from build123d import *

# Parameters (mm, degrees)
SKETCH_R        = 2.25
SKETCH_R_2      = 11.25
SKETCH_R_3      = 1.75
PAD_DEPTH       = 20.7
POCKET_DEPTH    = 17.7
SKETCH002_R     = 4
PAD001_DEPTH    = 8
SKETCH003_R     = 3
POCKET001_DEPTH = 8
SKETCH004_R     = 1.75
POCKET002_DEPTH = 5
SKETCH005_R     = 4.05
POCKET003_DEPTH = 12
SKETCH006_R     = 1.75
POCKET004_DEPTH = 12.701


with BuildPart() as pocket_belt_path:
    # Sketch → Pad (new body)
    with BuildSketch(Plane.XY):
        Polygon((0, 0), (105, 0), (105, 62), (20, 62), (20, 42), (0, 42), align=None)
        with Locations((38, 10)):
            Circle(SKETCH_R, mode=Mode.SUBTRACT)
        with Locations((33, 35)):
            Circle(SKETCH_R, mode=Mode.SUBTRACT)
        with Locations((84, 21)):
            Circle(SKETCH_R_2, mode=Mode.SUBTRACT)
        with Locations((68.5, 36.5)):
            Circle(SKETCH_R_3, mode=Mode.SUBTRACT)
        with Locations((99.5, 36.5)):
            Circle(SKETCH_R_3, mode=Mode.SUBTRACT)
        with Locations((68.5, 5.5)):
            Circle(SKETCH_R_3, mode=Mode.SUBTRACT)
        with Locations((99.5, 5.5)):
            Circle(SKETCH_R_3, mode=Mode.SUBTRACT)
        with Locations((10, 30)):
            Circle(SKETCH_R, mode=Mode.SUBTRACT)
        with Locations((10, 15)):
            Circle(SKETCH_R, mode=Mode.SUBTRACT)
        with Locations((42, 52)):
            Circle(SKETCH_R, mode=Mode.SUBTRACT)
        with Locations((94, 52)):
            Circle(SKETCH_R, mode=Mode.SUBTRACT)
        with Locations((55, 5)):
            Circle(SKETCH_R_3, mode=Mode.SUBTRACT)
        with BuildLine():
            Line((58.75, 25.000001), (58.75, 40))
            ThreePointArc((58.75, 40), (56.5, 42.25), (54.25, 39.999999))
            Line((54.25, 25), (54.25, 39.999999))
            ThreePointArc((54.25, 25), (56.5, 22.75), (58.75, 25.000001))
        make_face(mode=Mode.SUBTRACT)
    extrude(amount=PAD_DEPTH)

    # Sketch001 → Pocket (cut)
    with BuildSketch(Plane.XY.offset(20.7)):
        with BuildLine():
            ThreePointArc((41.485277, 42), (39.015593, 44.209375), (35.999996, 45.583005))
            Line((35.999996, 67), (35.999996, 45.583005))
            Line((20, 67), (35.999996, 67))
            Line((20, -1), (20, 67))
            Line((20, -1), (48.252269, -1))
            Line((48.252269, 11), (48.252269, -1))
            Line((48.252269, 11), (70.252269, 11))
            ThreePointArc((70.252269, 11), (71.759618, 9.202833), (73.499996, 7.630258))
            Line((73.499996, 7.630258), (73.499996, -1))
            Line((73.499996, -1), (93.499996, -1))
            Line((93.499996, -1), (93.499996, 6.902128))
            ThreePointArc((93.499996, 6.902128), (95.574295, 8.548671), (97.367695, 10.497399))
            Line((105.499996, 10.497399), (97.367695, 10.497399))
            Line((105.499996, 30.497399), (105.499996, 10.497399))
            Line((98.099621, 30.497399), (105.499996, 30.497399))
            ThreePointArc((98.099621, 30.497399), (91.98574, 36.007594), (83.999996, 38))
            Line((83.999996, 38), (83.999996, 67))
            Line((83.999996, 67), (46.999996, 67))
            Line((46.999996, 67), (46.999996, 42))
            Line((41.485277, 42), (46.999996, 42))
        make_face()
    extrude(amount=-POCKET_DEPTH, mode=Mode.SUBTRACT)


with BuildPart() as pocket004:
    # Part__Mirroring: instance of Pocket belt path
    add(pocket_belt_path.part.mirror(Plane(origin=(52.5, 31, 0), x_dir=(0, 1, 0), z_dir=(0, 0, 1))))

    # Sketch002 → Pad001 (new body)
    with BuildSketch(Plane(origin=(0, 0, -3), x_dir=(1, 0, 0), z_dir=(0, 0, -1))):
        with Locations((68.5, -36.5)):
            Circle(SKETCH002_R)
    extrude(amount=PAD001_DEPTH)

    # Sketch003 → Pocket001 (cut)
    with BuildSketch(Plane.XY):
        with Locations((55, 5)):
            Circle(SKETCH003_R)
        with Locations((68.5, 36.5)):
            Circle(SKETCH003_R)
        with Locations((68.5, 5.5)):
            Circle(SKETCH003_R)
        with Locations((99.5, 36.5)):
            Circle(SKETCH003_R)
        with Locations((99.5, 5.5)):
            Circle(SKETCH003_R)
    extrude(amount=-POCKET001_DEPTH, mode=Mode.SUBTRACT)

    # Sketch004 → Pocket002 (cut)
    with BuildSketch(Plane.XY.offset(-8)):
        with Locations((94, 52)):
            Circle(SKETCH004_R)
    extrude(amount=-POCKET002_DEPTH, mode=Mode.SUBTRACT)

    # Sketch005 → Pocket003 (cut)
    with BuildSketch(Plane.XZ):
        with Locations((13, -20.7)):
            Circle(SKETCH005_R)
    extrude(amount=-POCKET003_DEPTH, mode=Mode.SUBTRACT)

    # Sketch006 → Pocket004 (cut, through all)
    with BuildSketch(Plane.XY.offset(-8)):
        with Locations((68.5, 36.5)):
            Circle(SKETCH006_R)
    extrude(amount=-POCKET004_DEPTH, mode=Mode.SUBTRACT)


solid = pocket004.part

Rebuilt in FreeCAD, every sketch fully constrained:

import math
import FreeCAD as App
import Part
import Sketcher
Q = App.Units.Quantity

doc = App.newDocument("Part")
body = doc.addObject("PartDesign::Body", "Body")

# Sketch on XY plane
sketch1 = body.newObject("Sketcher::SketchObject", "Sketch")
sketch1.AttachmentSupport = (doc.getObject("XY_Plane"), [""])
sketch1.MapMode = "FlatFace"
sketch1.addGeometry([
    Part.LineSegment(App.Vector(0, 0, 0), App.Vector(105, 0, 0)),  # 0
    Part.LineSegment(App.Vector(105, 0, 0), App.Vector(105, 62, 0)),  # 1
    Part.LineSegment(App.Vector(105, 62, 0), App.Vector(20, 62, 0)),  # 2
    Part.LineSegment(App.Vector(20, 62, 0), App.Vector(20, 42, 0)),  # 3
    Part.LineSegment(App.Vector(20, 42, 0), App.Vector(0, 42, 0)),  # 4
    Part.LineSegment(App.Vector(0, 42, 0), App.Vector(0, 0, 0)),  # 5
    Part.Circle(App.Vector(10, 15, 0), App.Vector(0, 0, 1), 2.2),  # 6
    Part.Circle(App.Vector(38, 10, 0), App.Vector(0, 0, 1), 2.2),  # 7
    Part.Circle(App.Vector(55, 5, 0), App.Vector(0, 0, 1), 1.8),  # 8
    Part.Circle(App.Vector(68.5, 5.5, 0), App.Vector(0, 0, 1), 1.8),  # 9
    Part.Circle(App.Vector(99.5, 5.5, 0), App.Vector(0, 0, 1), 1.8),  # 10
    Part.Circle(App.Vector(84, 21, 0), App.Vector(0, 0, 1), 11.2),  # 11
    Part.Circle(App.Vector(10, 30, 0), App.Vector(0, 0, 1), 2.2),  # 12
    Part.Circle(App.Vector(33, 35, 0), App.Vector(0, 0, 1), 2.2),  # 13
    Part.Circle(App.Vector(42, 52, 0), App.Vector(0, 0, 1), 2.2),  # 14
    Part.LineSegment(App.Vector(58.8, 40, 0), App.Vector(58.8, 25, 0)),  # 15
    Part.ArcOfCircle(Part.Circle(App.Vector(56.5, 25, 0), App.Vector(0, 0, 1), 2.2), math.radians(180), math.radians(360)),  # 16
    Part.LineSegment(App.Vector(54.2, 25, 0), App.Vector(54.2, 40, 0)),  # 17
    Part.ArcOfCircle(Part.Circle(App.Vector(56.5, 40, 0), App.Vector(0, 0, 1), 2.2), math.radians(0), math.radians(180)),  # 18
    Part.Circle(App.Vector(68.5, 36.5, 0), App.Vector(0, 0, 1), 1.8),  # 19
    Part.Circle(App.Vector(99.5, 36.5, 0), App.Vector(0, 0, 1), 1.8),  # 20
    Part.Circle(App.Vector(94, 52, 0), App.Vector(0, 0, 1), 2.2),  # 21
], False)
sketch1.addConstraint([
    Sketcher.Constraint("Coincident", 0, 2, 1, 1),
    Sketcher.Constraint("Coincident", 1, 2, 2, 1),
    Sketcher.Constraint("Coincident", 2, 2, 3, 1),
    Sketcher.Constraint("Coincident", 3, 2, 4, 1),
    Sketcher.Constraint("Coincident", 4, 2, 5, 1),
    Sketcher.Constraint("Coincident", 5, 2, 0, 1),
    Sketcher.Constraint("Tangent", 15, 2, 16, 2),
    Sketcher.Constraint("Tangent", 16, 1, 17, 1),
    Sketcher.Constraint("Tangent", 17, 2, 18, 2),
    Sketcher.Constraint("Tangent", 18, 1, 15, 1),
    Sketcher.Constraint("Horizontal", 0),
    Sketcher.Constraint("Vertical", 1),
    Sketcher.Constraint("Horizontal", 2),
    Sketcher.Constraint("Vertical", 3),
    Sketcher.Constraint("Horizontal", 4),
    Sketcher.Constraint("Vertical", 5),
    Sketcher.Constraint("Vertical", 15),
    Sketcher.Constraint("Vertical", 17),
    Sketcher.Constraint("Coincident", 5, 2, -1, 1),
    Sketcher.Constraint("Equal", 6, 7),
    Sketcher.Constraint("Equal", 8, 9),
    Sketcher.Constraint("Equal", 9, 10),
    Sketcher.Constraint("Equal", 7, 12),
    Sketcher.Constraint("Equal", 12, 13),
    Sketcher.Constraint("Equal", 13, 14),
    Sketcher.Constraint("Equal", 14, 16),
    Sketcher.Constraint("Equal", 10, 19),
    Sketcher.Constraint("Equal", 19, 20),
    Sketcher.Constraint("Equal", 18, 21),
    Sketcher.Constraint("Horizontal", 9, 3, 10, 3),
    Sketcher.Constraint("Horizontal", 19, 3, 20, 3),
    Sketcher.Constraint("Horizontal", 14, 3, 21, 3),
    Sketcher.Constraint("Vertical", 6, 3, 12, 3),
    Sketcher.Constraint("Vertical", 9, 3, 19, 3),
    Sketcher.Constraint("Vertical", 10, 3, 20, 3),
    Sketcher.Constraint("Equal", 4, 3),
    Sketcher.Constraint("Diameter", 6, Q("4.5 mm")),
    Sketcher.Constraint("Diameter", 8, Q("3.5 mm")),
    Sketcher.Constraint("Diameter", 11, Q("22.5 mm")),
    Sketcher.Constraint("DistanceX", 0, 1, 0, 2, Q("105 mm")),
    Sketcher.Constraint("DistanceX", 2, 2, 2, 1, Q("85 mm")),
    Sketcher.Constraint("DistanceY", 1, 1, 1, 2, Q("62 mm")),
    Sketcher.Constraint("DistanceY", 15, 2, 15, 1, Q("14.999999 mm")),
    Sketcher.Constraint("DistanceX", -1, 1, 6, 3, Q("10 mm")),
    Sketcher.Constraint("DistanceY", -1, 1, 6, 3, Q("15 mm")),
    Sketcher.Constraint("DistanceX", -1, 1, 7, 3, Q("38 mm")),
    Sketcher.Constraint("DistanceY", -1, 1, 7, 3, Q("10 mm")),
    Sketcher.Constraint("DistanceX", -1, 1, 8, 3, Q("55 mm")),
    Sketcher.Constraint("DistanceY", -1, 1, 8, 3, Q("5 mm")),
    Sketcher.Constraint("DistanceX", -1, 1, 11, 3, Q("84 mm")),
    Sketcher.Constraint("DistanceY", -1, 1, 11, 3, Q("21 mm")),
    Sketcher.Constraint("DistanceY", -1, 1, 12, 3, Q("30 mm")),
    Sketcher.Constraint("DistanceX", -1, 1, 13, 3, Q("33 mm")),
    Sketcher.Constraint("DistanceY", -1, 1, 13, 3, Q("35 mm")),
    Sketcher.Constraint("DistanceX", -1, 1, 14, 3, Q("42 mm")),
    Sketcher.Constraint("DistanceY", -1, 1, 14, 3, Q("52 mm")),
    Sketcher.Constraint("DistanceY", -1, 1, 16, 3, Q("25 mm")),
    Sketcher.Constraint("DistanceX", -1, 1, 21, 3, Q("94 mm")),
    Sketcher.Constraint("DistanceX", 9, 3, 10, 3, Q("31 mm")),
    Sketcher.Constraint("DistanceX", 16, 3, 9, 3, Q("12 mm")),
    Sketcher.Constraint("DistanceY", 9, 3, 19, 3, Q("31 mm")),
    Sketcher.Constraint("DistanceX", -1, 1, 9, 3, Q("68.5 mm")),
    Sketcher.Constraint("DistanceY", -1, 1, 9, 3, Q("5.5 mm")),
])
pad1 = body.newObject("PartDesign::Pad", "Pad")
pad1.Profile = sketch1
pad1.Length = 20.7

# Sketch on XY plane
sketch2 = body.newObject("Sketcher::SketchObject", "Sketch001")
sketch2.AttachmentSupport = (doc.getObject("XY_Plane"), [""])
sketch2.MapMode = "FlatFace"
sketch2.AttachmentOffset = App.Placement(App.Vector(0, 0, 20.7), App.Rotation())
sketch2.addGeometry([
    Part.ArcOfCircle(Part.Circle(App.Vector(33, 35, 0), App.Vector(0, 0, 1), 11), math.radians(40), math.radians(74)),  # 0
    Part.LineSegment(App.Vector(36, 45.6, 0), App.Vector(36, 67, 0)),  # 1
    Part.LineSegment(App.Vector(36, 67, 0), App.Vector(20, 67, 0)),  # 2
    Part.LineSegment(App.Vector(20, 67, 0), App.Vector(20, -1, 0)),  # 3
    Part.LineSegment(App.Vector(20, -1, 0), App.Vector(48.3, -1, 0)),  # 4
    Part.LineSegment(App.Vector(48.3, -1, 0), App.Vector(48.3, 11, 0)),  # 5
    Part.LineSegment(App.Vector(48.3, 11, 0), App.Vector(70.3, 11, 0)),  # 6
    Part.ArcOfCircle(Part.Circle(App.Vector(84, 21, 0), App.Vector(0, 0, 1), 17), math.radians(-143.97), math.radians(-128.14)),  # 7
    Part.LineSegment(App.Vector(73.5, 7.6, 0), App.Vector(73.5, -1, 0)),  # 8
    Part.LineSegment(App.Vector(73.5, -1, 0), App.Vector(93.5, -1, 0)),  # 9
    Part.LineSegment(App.Vector(93.5, -1, 0), App.Vector(93.5, 6.9, 0)),  # 10
    Part.ArcOfCircle(Part.Circle(App.Vector(84, 21, 0), App.Vector(0, 0, 1), 17), math.radians(-56.03), math.radians(-38.16)),  # 11
    Part.LineSegment(App.Vector(97.4, 10.5, 0), App.Vector(105.5, 10.5, 0)),  # 12
    Part.LineSegment(App.Vector(105.5, 10.5, 0), App.Vector(105.5, 30.5, 0)),  # 13
    Part.LineSegment(App.Vector(105.5, 30.5, 0), App.Vector(98.1, 30.5, 0)),  # 14
    Part.ArcOfCircle(Part.Circle(App.Vector(84, 21, 0), App.Vector(0, 0, 1), 17), math.radians(34), math.radians(90)),  # 15
    Part.LineSegment(App.Vector(84, 38, 0), App.Vector(84, 67, 0)),  # 16
    Part.LineSegment(App.Vector(84, 67, 0), App.Vector(47, 67, 0)),  # 17
    Part.LineSegment(App.Vector(47, 67, 0), App.Vector(47, 42, 0)),  # 18
    Part.LineSegment(App.Vector(47, 42, 0), App.Vector(41.5, 42, 0)),  # 19
], False)
sketch2.addConstraint([
    Sketcher.Constraint("Coincident", 0, 2, 1, 1),
    Sketcher.Constraint("Coincident", 1, 2, 2, 1),
    Sketcher.Constraint("Coincident", 2, 2, 3, 1),
    Sketcher.Constraint("Coincident", 3, 2, 4, 1),
    Sketcher.Constraint("Coincident", 4, 2, 5, 1),
    Sketcher.Constraint("Coincident", 5, 2, 6, 1),
    Sketcher.Constraint("Coincident", 6, 2, 7, 1),
    Sketcher.Constraint("Coincident", 7, 2, 8, 1),
    Sketcher.Constraint("Coincident", 8, 2, 9, 1),
    Sketcher.Constraint("Coincident", 9, 2, 10, 1),
    Sketcher.Constraint("Coincident", 10, 2, 11, 1),
    Sketcher.Constraint("Coincident", 11, 2, 12, 1),
    Sketcher.Constraint("Coincident", 12, 2, 13, 1),
    Sketcher.Constraint("Coincident", 13, 2, 14, 1),
    Sketcher.Constraint("Coincident", 14, 2, 15, 1),
    Sketcher.Constraint("Coincident", 15, 2, 16, 1),
    Sketcher.Constraint("Coincident", 16, 2, 17, 1),
    Sketcher.Constraint("Coincident", 17, 2, 18, 1),
    Sketcher.Constraint("Coincident", 18, 2, 19, 1),
    Sketcher.Constraint("Coincident", 19, 2, 0, 1),
    Sketcher.Constraint("Vertical", 1),
    Sketcher.Constraint("Horizontal", 2),
    Sketcher.Constraint("Vertical", 3),
    Sketcher.Constraint("Horizontal", 4),
    Sketcher.Constraint("Vertical", 5),
    Sketcher.Constraint("Horizontal", 6),
    Sketcher.Constraint("Vertical", 8),
    Sketcher.Constraint("Horizontal", 9),
    Sketcher.Constraint("Vertical", 10),
    Sketcher.Constraint("Horizontal", 12),
    Sketcher.Constraint("Vertical", 13),
    Sketcher.Constraint("Horizontal", 14),
    Sketcher.Constraint("Vertical", 16),
    Sketcher.Constraint("Horizontal", 17),
    Sketcher.Constraint("Vertical", 18),
    Sketcher.Constraint("Horizontal", 19),
    Sketcher.Constraint("Coincident", 15, 3, 7, 3),
    Sketcher.Constraint("Horizontal", 4, 2, 8, 2),
    Sketcher.Constraint("Horizontal", 2, 2, 16, 2),
    Sketcher.Constraint("Equal", 9, 13),
    Sketcher.Constraint("Radius", 0, Q("10.999999 mm")),
    Sketcher.Constraint("DistanceX", 6, 1, 6, 2, Q("22 mm")),
    Sketcher.Constraint("DistanceX", 9, 1, 9, 2, Q("20 mm")),
    Sketcher.Constraint("DistanceX", 17, 2, 17, 1, Q("37 mm")),
    Sketcher.Constraint("DistanceY", 3, 2, 3, 1, Q("68 mm")),
    Sketcher.Constraint("DistanceY", 5, 1, 5, 2, Q("12 mm")),
    Sketcher.Constraint("DistanceY", 16, 1, 16, 2, Q("29 mm")),
    Sketcher.Constraint("DistanceY", 18, 2, 18, 1, Q("25 mm")),
    Sketcher.Constraint("DistanceY", -1, 1, 0, 3, Q("35.000001 mm")),
    Sketcher.Constraint("DistanceY", -1, 1, 1, 2, Q("67 mm")),
    Sketcher.Constraint("DistanceX", -1, 1, 2, 2, Q("20 mm")),
    Sketcher.Constraint("DistanceX", 0, 3, 0, 2, Q("3 mm")),
    Sketcher.Constraint("DistanceX", 10, 2, 12, 2, Q("12 mm")),
    Sketcher.Constraint("DistanceX", 1, 2, 17, 2, Q("11 mm")),
    Sketcher.Constraint("DistanceX", 15, 2, 13, 2, Q("21.5 mm")),
    Sketcher.Constraint("Radius", 7, Q("16.99999 mm")),
    Sketcher.Constraint("Radius", 11, Q("17.00002 mm")),
    Sketcher.Constraint("DistanceX", 12, 1, 12, 2, Q("8.132301 mm")),
    Sketcher.Constraint("Radius", 15, Q("17.000005 mm")),
    Sketcher.Constraint("DistanceX", 4, 1, 4, 2, Q("28.252269 mm")),
    Sketcher.Constraint("DistanceY", 8, 2, 8, 1, Q("8.630258 mm")),
    Sketcher.Constraint("DistanceY", 10, 1, 10, 2, Q("7.902128 mm")),
    Sketcher.Constraint("DistanceY", -1, 1, 11, 2, Q("10.497399 mm")),
])
pocket1 = body.newObject("PartDesign::Pocket", "Pocket")
pocket1.Profile = sketch2
pocket1.Length = 17.7
body2 = doc.addObject("PartDesign::Body", "Body001")
doc.recompute()

mirroring = doc.addObject("Part::Mirroring", "Mirroring")
mirroring.Source = body
mirroring.Base = App.Vector(52.5, 31, 0)
mirroring.Normal = App.Vector(0, 0, 1)
body2.BaseFeature = mirroring
doc.recompute()

# Sketch on XY plane
sketch3 = body2.newObject("Sketcher::SketchObject", "Sketch002")
sketch3.AttachmentSupport = (doc.getObject("XY_Plane001"), [""])
sketch3.MapMode = "FlatFace"
sketch3.AttachmentOffset = App.Placement(App.Vector(0, 0, -3), App.Rotation())
sketch3.addGeometry(Part.Circle(App.Vector(68.5, 36.5, 0), App.Vector(0, 0, 1), 4), False)
sketch3.addConstraint([
    Sketcher.Constraint("Diameter", 0, Q("8 mm")),
    Sketcher.Constraint("DistanceX", -1, 1, 0, 3, Q("68.5 mm")),
    Sketcher.Constraint("DistanceY", -1, 1, 0, 3, Q("36.5 mm")),
])
pad2 = body2.newObject("PartDesign::Pad", "Pad001")
pad2.Profile = sketch3
pad2.Length = 8
pad2.Reversed = True

# Sketch on XY plane
sketch4 = body2.newObject("Sketcher::SketchObject", "Sketch003")
sketch4.AttachmentSupport = (doc.getObject("XY_Plane001"), [""])
sketch4.MapMode = "FlatFace"
sketch4.addGeometry([
    Part.Circle(App.Vector(55, 5, 0), App.Vector(0, 0, 1), 3),  # 0
    Part.Circle(App.Vector(68.5, 36.5, 0), App.Vector(0, 0, 1), 3),  # 1
    Part.Circle(App.Vector(68.5, 5.5, 0), App.Vector(0, 0, 1), 3),  # 2
    Part.Circle(App.Vector(99.5, 36.5, 0), App.Vector(0, 0, 1), 3),  # 3
    Part.Circle(App.Vector(99.5, 5.5, 0), App.Vector(0, 0, 1), 3),  # 4
], False)
sketch4.addConstraint([
    Sketcher.Constraint("Equal", 0, 1),
    Sketcher.Constraint("Equal", 1, 2),
    Sketcher.Constraint("Equal", 2, 3),
    Sketcher.Constraint("Equal", 3, 4),
    Sketcher.Constraint("Horizontal", 1, 3, 3, 3),
    Sketcher.Constraint("Horizontal", 2, 3, 4, 3),
    Sketcher.Constraint("Vertical", 1, 3, 2, 3),
    Sketcher.Constraint("Vertical", 3, 3, 4, 3),
    Sketcher.Constraint("Diameter", 0, Q("6 mm")),
    Sketcher.Constraint("DistanceX", -1, 1, 0, 3, Q("55 mm")),
    Sketcher.Constraint("DistanceY", -1, 1, 0, 3, Q("5 mm")),
    Sketcher.Constraint("DistanceY", 2, 3, 1, 3, Q("31 mm")),
    Sketcher.Constraint("DistanceX", 1, 3, 3, 3, Q("31 mm")),
    Sketcher.Constraint("DistanceX", -1, 1, 1, 3, Q("68.5 mm")),
    Sketcher.Constraint("DistanceY", -1, 1, 1, 3, Q("36.5 mm")),
])
pocket2 = body2.newObject("PartDesign::Pocket", "Pocket001")
pocket2.Profile = sketch4
pocket2.Length = 8

# Sketch on XY plane
sketch5 = body2.newObject("Sketcher::SketchObject", "Sketch004")
sketch5.AttachmentSupport = (doc.getObject("XY_Plane001"), [""])
sketch5.MapMode = "FlatFace"
sketch5.AttachmentOffset = App.Placement(App.Vector(0, 0, -8), App.Rotation())
sketch5.addGeometry(Part.Circle(App.Vector(94, 52, 0), App.Vector(0, 0, 1), 1.8), False)
sketch5.addConstraint([
    Sketcher.Constraint("Diameter", 0, Q("3.5 mm")),
    Sketcher.Constraint("DistanceX", -1, 1, 0, 3, Q("94 mm")),
    Sketcher.Constraint("DistanceY", -1, 1, 0, 3, Q("52 mm")),
])
pocket3 = body2.newObject("PartDesign::Pocket", "Pocket002")
pocket3.Profile = sketch5
pocket3.Length = 5

# Sketch on XZ plane
sketch6 = body2.newObject("Sketcher::SketchObject", "Sketch005")
sketch6.AttachmentSupport = (doc.getObject("XZ_Plane001"), [""])
sketch6.MapMode = "FlatFace"
sketch6.addGeometry(Part.Circle(App.Vector(13, -20.7, 0), App.Vector(0, 0, 1), 4), False)
sketch6.addConstraint([
    Sketcher.Constraint("Diameter", 0, Q("8.1 mm")),
    Sketcher.Constraint("DistanceX", -1, 1, 0, 3, Q("13 mm")),
    Sketcher.Constraint("DistanceY", 0, 3, -1, 1, Q("20.7 mm")),
])
pocket4 = body2.newObject("PartDesign::Pocket", "Pocket003")
pocket4.Profile = sketch6
pocket4.Length = 12

# Sketch on XY plane
sketch7 = body2.newObject("Sketcher::SketchObject", "Sketch006")
sketch7.AttachmentSupport = (doc.getObject("XY_Plane001"), [""])
sketch7.MapMode = "FlatFace"
sketch7.AttachmentOffset = App.Placement(App.Vector(0, 0, -8), App.Rotation())
sketch7.addGeometry(Part.Circle(App.Vector(68.5, 36.5, 0), App.Vector(0, 0, 1), 1.8), False)
sketch7.addConstraint([
    Sketcher.Constraint("Diameter", 0, Q("3.5 mm")),
    Sketcher.Constraint("DistanceX", -1, 1, 0, 3, Q("68.5 mm")),
    Sketcher.Constraint("DistanceY", -1, 1, 0, 3, Q("36.5 mm")),
])
pocket5 = body2.newObject("PartDesign::Pocket", "Pocket004")
pocket5.Profile = sketch7
pocket5.Type = "ThroughAll"
body.Visibility = False
mirroring.Visibility = False

doc.recompute()
